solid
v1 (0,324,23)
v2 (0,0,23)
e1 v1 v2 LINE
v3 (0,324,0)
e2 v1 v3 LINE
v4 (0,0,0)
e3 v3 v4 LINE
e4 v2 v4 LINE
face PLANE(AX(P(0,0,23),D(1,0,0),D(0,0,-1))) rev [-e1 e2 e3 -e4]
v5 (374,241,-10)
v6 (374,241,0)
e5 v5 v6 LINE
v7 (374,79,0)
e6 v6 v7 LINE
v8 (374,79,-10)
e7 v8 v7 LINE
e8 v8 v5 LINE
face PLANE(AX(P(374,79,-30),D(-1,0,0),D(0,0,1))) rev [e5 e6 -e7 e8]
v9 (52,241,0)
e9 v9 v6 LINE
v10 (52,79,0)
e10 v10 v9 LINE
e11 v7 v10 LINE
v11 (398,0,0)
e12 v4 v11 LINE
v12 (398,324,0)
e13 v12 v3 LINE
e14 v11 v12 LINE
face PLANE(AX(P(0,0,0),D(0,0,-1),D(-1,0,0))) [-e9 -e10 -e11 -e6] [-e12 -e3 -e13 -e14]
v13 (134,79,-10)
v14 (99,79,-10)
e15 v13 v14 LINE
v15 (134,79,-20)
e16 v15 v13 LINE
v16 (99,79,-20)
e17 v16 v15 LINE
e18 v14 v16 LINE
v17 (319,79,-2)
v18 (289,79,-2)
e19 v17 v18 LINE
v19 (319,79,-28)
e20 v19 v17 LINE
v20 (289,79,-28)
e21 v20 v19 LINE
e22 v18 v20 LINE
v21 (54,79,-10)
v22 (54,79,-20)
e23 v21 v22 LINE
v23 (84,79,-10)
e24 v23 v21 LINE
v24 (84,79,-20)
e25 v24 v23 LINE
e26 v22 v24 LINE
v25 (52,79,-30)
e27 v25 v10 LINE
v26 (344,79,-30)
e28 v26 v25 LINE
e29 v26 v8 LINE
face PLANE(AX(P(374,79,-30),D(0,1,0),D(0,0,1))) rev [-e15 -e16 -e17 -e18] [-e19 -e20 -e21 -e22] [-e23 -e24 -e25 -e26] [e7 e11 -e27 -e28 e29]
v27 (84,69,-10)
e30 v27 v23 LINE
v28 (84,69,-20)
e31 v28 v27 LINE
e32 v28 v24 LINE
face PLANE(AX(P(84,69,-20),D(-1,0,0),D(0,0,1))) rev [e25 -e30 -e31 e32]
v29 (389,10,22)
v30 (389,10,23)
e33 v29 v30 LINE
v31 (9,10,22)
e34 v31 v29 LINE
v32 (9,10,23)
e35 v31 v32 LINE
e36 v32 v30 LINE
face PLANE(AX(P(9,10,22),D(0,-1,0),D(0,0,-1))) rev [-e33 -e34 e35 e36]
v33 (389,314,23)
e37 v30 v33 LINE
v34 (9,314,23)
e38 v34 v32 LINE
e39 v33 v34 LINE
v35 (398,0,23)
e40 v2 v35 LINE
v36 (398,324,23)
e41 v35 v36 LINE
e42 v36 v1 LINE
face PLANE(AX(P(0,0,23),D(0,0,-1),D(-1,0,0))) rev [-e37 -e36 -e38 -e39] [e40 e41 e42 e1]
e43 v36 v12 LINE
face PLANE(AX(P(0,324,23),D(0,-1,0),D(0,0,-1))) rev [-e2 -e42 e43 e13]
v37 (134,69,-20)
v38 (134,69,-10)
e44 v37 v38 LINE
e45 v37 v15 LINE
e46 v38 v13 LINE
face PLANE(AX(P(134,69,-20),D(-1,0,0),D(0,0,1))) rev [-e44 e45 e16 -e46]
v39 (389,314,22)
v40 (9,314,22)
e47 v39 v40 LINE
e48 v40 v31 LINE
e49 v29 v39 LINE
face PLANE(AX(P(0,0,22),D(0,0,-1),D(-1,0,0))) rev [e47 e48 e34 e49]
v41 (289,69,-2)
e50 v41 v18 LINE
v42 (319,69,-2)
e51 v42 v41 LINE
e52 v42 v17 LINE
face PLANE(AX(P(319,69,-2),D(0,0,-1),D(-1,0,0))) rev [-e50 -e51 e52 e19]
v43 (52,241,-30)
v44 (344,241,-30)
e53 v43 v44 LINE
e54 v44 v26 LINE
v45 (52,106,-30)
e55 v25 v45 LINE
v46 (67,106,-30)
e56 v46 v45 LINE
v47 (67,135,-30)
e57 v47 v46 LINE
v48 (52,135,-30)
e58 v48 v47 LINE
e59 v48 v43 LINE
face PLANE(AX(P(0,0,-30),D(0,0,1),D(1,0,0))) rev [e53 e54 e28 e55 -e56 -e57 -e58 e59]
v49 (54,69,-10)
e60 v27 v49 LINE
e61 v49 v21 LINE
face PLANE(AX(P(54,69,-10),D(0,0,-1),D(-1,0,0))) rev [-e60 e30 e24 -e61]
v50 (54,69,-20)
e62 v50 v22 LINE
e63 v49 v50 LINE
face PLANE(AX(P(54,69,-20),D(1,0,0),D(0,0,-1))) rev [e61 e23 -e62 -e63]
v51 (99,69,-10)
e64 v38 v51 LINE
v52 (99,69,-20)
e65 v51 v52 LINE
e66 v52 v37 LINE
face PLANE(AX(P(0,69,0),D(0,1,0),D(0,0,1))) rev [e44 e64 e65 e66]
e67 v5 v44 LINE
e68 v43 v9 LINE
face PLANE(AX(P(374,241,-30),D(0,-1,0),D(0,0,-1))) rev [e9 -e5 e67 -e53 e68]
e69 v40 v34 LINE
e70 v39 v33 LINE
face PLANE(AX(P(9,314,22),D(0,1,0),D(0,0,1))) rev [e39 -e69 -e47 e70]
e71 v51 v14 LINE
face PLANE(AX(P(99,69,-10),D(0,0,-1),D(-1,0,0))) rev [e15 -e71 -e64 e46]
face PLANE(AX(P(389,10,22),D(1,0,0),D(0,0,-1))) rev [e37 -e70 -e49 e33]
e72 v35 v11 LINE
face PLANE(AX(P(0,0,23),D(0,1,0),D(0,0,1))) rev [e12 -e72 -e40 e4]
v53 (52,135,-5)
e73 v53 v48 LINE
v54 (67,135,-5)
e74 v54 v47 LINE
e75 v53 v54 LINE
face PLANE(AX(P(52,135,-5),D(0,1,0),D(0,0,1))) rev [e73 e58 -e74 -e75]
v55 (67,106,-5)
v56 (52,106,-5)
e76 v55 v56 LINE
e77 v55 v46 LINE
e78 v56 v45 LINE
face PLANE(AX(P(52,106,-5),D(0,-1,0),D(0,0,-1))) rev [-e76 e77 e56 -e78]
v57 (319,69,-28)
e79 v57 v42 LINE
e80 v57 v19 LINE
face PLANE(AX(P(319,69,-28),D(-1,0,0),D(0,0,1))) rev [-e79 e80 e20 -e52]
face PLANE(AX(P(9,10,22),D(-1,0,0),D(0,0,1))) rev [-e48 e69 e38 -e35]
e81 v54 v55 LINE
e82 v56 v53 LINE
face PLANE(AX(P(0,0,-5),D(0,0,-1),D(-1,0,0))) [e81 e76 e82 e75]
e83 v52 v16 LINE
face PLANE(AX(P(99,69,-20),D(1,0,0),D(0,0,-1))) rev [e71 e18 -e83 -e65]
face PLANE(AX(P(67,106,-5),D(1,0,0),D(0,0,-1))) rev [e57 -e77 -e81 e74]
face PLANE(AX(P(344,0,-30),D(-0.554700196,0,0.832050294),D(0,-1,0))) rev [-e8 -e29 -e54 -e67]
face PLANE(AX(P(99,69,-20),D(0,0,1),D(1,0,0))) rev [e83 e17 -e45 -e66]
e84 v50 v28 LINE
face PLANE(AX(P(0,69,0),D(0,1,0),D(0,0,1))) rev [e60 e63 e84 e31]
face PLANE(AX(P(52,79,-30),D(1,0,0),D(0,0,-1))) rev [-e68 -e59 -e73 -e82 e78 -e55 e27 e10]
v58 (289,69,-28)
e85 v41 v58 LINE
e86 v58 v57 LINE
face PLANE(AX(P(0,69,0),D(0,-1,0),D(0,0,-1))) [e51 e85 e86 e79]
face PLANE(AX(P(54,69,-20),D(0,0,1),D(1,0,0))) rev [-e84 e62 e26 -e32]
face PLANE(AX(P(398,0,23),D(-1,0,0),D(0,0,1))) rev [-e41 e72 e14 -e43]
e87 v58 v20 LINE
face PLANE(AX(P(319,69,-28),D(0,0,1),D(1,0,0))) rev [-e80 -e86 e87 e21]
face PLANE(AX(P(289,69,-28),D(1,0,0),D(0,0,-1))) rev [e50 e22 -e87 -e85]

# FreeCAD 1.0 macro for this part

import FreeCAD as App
import Part
import Sketcher
from FreeCAD import Vector


def edges_at(feature, points):
    """Names of the edges that pass closest to the given points."""
    edges = feature.Shape.Edges
    near = lambda p: min(range(len(edges)), key=lambda i: edges[i].distToShape(Part.Vertex(*p))[0])
    return sorted({f"Edge{near(p) + 1}" for p in points})

doc = App.newDocument("Part")
body = doc.addObject("PartDesign::Body", "Body")

sketch1 = doc.addObject("Sketcher::SketchObject", "Sketch")
body.addObject(sketch1)
sketch1.AttachmentSupport = (doc.XY_Plane, [""])
sketch1.MapMode = "FlatFace"
sketch1.addGeometry(Part.LineSegment(Vector(0, 324, 0), Vector(0, 0, 0)), False)
sketch1.addGeometry(Part.LineSegment(Vector(0, 0, 0), Vector(398, 0, 0)), False)
sketch1.addGeometry(Part.LineSegment(Vector(398, 0, 0), Vector(398, 324, 0)), False)
sketch1.addGeometry(Part.LineSegment(Vector(398, 324, 0), Vector(0, 324, 0)), False)
sketch1.addConstraint(Sketcher.Constraint("Coincident", 0, 2, 1, 1))
sketch1.addConstraint(Sketcher.Constraint("Coincident", 1, 2, 2, 1))
sketch1.addConstraint(Sketcher.Constraint("Coincident", 2, 2, 3, 1))
sketch1.addConstraint(Sketcher.Constraint("Coincident", 3, 2, 0, 1))
sketch1.addConstraint(Sketcher.Constraint("Vertical", 0))
sketch1.addConstraint(Sketcher.Constraint("Horizontal", 1))
sketch1.addConstraint(Sketcher.Constraint("Vertical", 2))
sketch1.addConstraint(Sketcher.Constraint("Horizontal", 3))
sketch1.addConstraint(Sketcher.Constraint("Coincident", 0, 2, -1, 1))
sketch1.addConstraint(Sketcher.Constraint("DistanceX", 1, 1, 1, 2, 398.0))
sketch1.addConstraint(Sketcher.Constraint("DistanceY", 0, 2, 0, 1, 324.0))
pad1 = doc.addObject("PartDesign::Pad", "Pad")
body.addObject(pad1)
pad1.Profile = sketch1
pad1.Length = 23

sketch2 = doc.addObject("Sketcher::SketchObject", "Sketch001")
body.addObject(sketch2)
sketch2.AttachmentSupport = (doc.XY_Plane, [""])
sketch2.MapMode = "FlatFace"
sketch2.AttachmentOffset = App.Placement(Vector(0, 0, 23), App.Rotation())
sketch2.addGeometry(Part.LineSegment(Vector(9, 314, 0), Vector(9, 10, 0)), False)
sketch2.addGeometry(Part.LineSegment(Vector(9, 10, 0), Vector(389, 10, 0)), False)
sketch2.addGeometry(Part.LineSegment(Vector(389, 10, 0), Vector(389, 314, 0)), False)
sketch2.addGeometry(Part.LineSegment(Vector(389, 314, 0), Vector(9, 314, 0)), False)
sketch2.addConstraint(Sketcher.Constraint("Coincident", 0, 2, 1, 1))
sketch2.addConstraint(Sketcher.Constraint("Coincident", 1, 2, 2, 1))
sketch2.addConstraint(Sketcher.Constraint("Coincident", 2, 2, 3, 1))
sketch2.addConstraint(Sketcher.Constraint("Coincident", 3, 2, 0, 1))
sketch2.addConstraint(Sketcher.Constraint("Vertical", 0))
sketch2.addConstraint(Sketcher.Constraint("Horizontal", 1))
sketch2.addConstraint(Sketcher.Constraint("Vertical", 2))
sketch2.addConstraint(Sketcher.Constraint("Horizontal", 3))
sketch2.addConstraint(Sketcher.Constraint("DistanceX", 1, 1, 1, 2, 380.0))
sketch2.addConstraint(Sketcher.Constraint("DistanceY", 0, 2, 0, 1, 304.0))
sketch2.addConstraint(Sketcher.Constraint("DistanceX", -1, 1, 0, 2, 9.0))
sketch2.addConstraint(Sketcher.Constraint("DistanceY", -1, 1, 0, 2, 10.0))
pocket1 = doc.addObject("PartDesign::Pocket", "Pocket")
body.addObject(pocket1)
pocket1.Profile = sketch2
pocket1.Length = 1

sketch3 = doc.addObject("Sketcher::SketchObject", "Sketch002")
body.addObject(sketch3)
sketch3.AttachmentSupport = (doc.XY_Plane, [""])
sketch3.MapMode = "FlatFace"
sketch3.addGeometry(Part.LineSegment(Vector(374, 241, 0), Vector(374, 79, 0)), False)
sketch3.addGeometry(Part.LineSegment(Vector(374, 79, 0), Vector(52, 79, 0)), False)
sketch3.addGeometry(Part.LineSegment(Vector(52, 79, 0), Vector(52, 241, 0)), False)
sketch3.addGeometry(Part.LineSegment(Vector(52, 241, 0), Vector(374, 241, 0)), False)
sketch3.addConstraint(Sketcher.Constraint("Coincident", 0, 2, 1, 1))
sketch3.addConstraint(Sketcher.Constraint("Coincident", 1, 2, 2, 1))
sketch3.addConstraint(Sketcher.Constraint("Coincident", 2, 2, 3, 1))
sketch3.addConstraint(Sketcher.Constraint("Coincident", 3, 2, 0, 1))
sketch3.addConstraint(Sketcher.Constraint("Vertical", 0))
sketch3.addConstraint(Sketcher.Constraint("Horizontal", 1))
sketch3.addConstraint(Sketcher.Constraint("Vertical", 2))
sketch3.addConstraint(Sketcher.Constraint("Horizontal", 3))
sketch3.addConstraint(Sketcher.Constraint("DistanceX", 1, 2, 1, 1, 322.0))
sketch3.addConstraint(Sketcher.Constraint("DistanceY", 0, 2, 0, 1, 162.0))
sketch3.addConstraint(Sketcher.Constraint("DistanceX", -1, 1, 0, 2, 374.0))
sketch3.addConstraint(Sketcher.Constraint("DistanceY", -1, 1, 0, 2, 79.0))
pad2 = doc.addObject("PartDesign::Pad", "Pad001")
body.addObject(pad2)
pad2.Profile = sketch3
pad2.Length = 30
pad2.Reversed = True
doc.recompute()

chamfer = doc.addObject("PartDesign::Chamfer", "Chamfer")
body.addObject(chamfer)
chamfer.Base = (pad2, edges_at(pad2, [(374, 160, -30)]))
chamfer.ChamferType = "Two distances"
chamfer.Size = 20
chamfer.Size2 = 30

sketch4 = doc.addObject("Sketcher::SketchObject", "Sketch003")
body.addObject(sketch4)
sketch4.AttachmentSupport = (doc.XZ_Plane, [""])
sketch4.MapMode = "FlatFace"
sketch4.AttachmentOffset = App.Placement(Vector(0, 0, -79), App.Rotation())
sketch4.addGeometry(Part.LineSegment(Vector(54, -10, 0), Vector(54, -20, 0)), False)
sketch4.addGeometry(Part.LineSegment(Vector(54, -20, 0), Vector(84, -20, 0)), False)
sketch4.addGeometry(Part.LineSegment(Vector(84, -20, 0), Vector(84, -10, 0)), False)
sketch4.addGeometry(Part.LineSegment(Vector(84, -10, 0), Vector(54, -10, 0)), False)
sketch4.addGeometry(Part.LineSegment(Vector(99, -10, 0), Vector(99, -20, 0)), False)
sketch4.addGeometry(Part.LineSegment(Vector(99, -20, 0), Vector(134, -20, 0)), False)
sketch4.addGeometry(Part.LineSegment(Vector(134, -20, 0), Vector(134, -10, 0)), False)
sketch4.addGeometry(Part.LineSegment(Vector(134, -10, 0), Vector(99, -10, 0)), False)
sketch4.addGeometry(Part.LineSegment(Vector(289, -2, 0), Vector(289, -28, 0)), False)
sketch4.addGeometry(Part.LineSegment(Vector(289, -28, 0), Vector(319, -28, 0)), False)
sketch4.addGeometry(Part.LineSegment(Vector(319, -28, 0), Vector(319, -2, 0)), False)
sketch4.addGeometry(Part.LineSegment(Vector(319, -2, 0), Vector(289, -2, 0)), False)
sketch4.addConstraint(Sketcher.Constraint("Coincident", 0, 2, 1, 1))
sketch4.addConstraint(Sketcher.Constraint("Coincident", 1, 2, 2, 1))
sketch4.addConstraint(Sketcher.Constraint("Coincident", 2, 2, 3, 1))
sketch4.addConstraint(Sketcher.Constraint("Coincident", 3, 2, 0, 1))
sketch4.addConstraint(Sketcher.Constraint("Coincident", 4, 2, 5, 1))
sketch4.addConstraint(Sketcher.Constraint("Coincident", 5, 2, 6, 1))
sketch4.addConstraint(Sketcher.Constraint("Coincident", 6, 2, 7, 1))
sketch4.addConstraint(Sketcher.Constraint("Coincident", 7, 2, 4, 1))
sketch4.addConstraint(Sketcher.Constraint("Coincident", 8, 2, 9, 1))
sketch4.addConstraint(Sketcher.Constraint("Coincident", 9, 2, 10, 1))
sketch4.addConstraint(Sketcher.Constraint("Coincident", 10, 2, 11, 1))
sketch4.addConstraint(Sketcher.Constraint("Coincident", 11, 2, 8, 1))
sketch4.addConstraint(Sketcher.Constraint("Vertical", 0))
sketch4.addConstraint(Sketcher.Constraint("Horizontal", 1))
sketch4.addConstraint(Sketcher.Constraint("Vertical", 2))
sketch4.addConstraint(Sketcher.Constraint("Horizontal", 3))
sketch4.addConstraint(Sketcher.Constraint("Vertical", 4))
sketch4.addConstraint(Sketcher.Constraint("Horizontal", 5))
sketch4.addConstraint(Sketcher.Constraint("Vertical", 6))
sketch4.addConstraint(Sketcher.Constraint("Horizontal", 7))
sketch4.addConstraint(Sketcher.Constraint("Vertical", 8))
sketch4.addConstraint(Sketcher.Constraint("Horizontal", 9))
sketch4.addConstraint(Sketcher.Constraint("Vertical", 10))
sketch4.addConstraint(Sketcher.Constraint("Horizontal", 11))
sketch4.addConstraint(Sketcher.Constraint("Horizontal", 1, 2, 4, 2))
sketch4.addConstraint(Sketcher.Constraint("Horizontal", 3, 2, 6, 2))
sketch4.addConstraint(Sketcher.Constraint("Equal", 3, 9))
sketch4.addConstraint(Sketcher.Constraint("DistanceX", 1, 1, 1, 2, 30.0))
sketch4.addConstraint(Sketcher.Constraint("DistanceX", 5, 1, 5, 2, 35.0))
sketch4.addConstraint(Sketcher.Constraint("DistanceY", 0, 2, 0, 1, 10.0))
sketch4.addConstraint(Sketcher.Constraint("DistanceY", 8, 2, 8, 1, 26.0))
sketch4.addConstraint(Sketcher.Constraint("DistanceX", -1, 1, 0, 2, 54.0))
sketch4.addConstraint(Sketcher.Constraint("DistanceY", 0, 2, -1, 1, 20.0))
sketch4.addConstraint(Sketcher.Constraint("DistanceX", -1, 1, 4, 2, 99.0))
sketch4.addConstraint(Sketcher.Constraint("DistanceX", -1, 1, 8, 2, 289.0))
sketch4.addConstraint(Sketcher.Constraint("DistanceY", 8, 2, -1, 1, 28.0))
pad3 = doc.addObject("PartDesign::Pad", "Pad002")
body.addObject(pad3)
pad3.Profile = sketch4
pad3.Length = 10

sketch5 = doc.addObject("Sketcher::SketchObject", "Sketch004")
body.addObject(sketch5)
sketch5.AttachmentSupport = (doc.XY_Plane, [""])
sketch5.MapMode = "FlatFace"
sketch5.AttachmentOffset = App.Placement(Vector(0, 0, -30), App.Rotation())
sketch5.addGeometry(Part.LineSegment(Vector(67, 135, 0), Vector(67, 106, 0)), False)
sketch5.addGeometry(Part.LineSegment(Vector(67, 106, 0), Vector(52, 106, 0)), False)
sketch5.addGeometry(Part.LineSegment(Vector(52, 106, 0), Vector(52, 135, 0)), False)
sketch5.addGeometry(Part.LineSegment(Vector(52, 135, 0), Vector(67, 135, 0)), False)
sketch5.addConstraint(Sketcher.Constraint("Coincident", 0, 2, 1, 1))
sketch5.addConstraint(Sketcher.Constraint("Coincident", 1, 2, 2, 1))
sketch5.addConstraint(Sketcher.Constraint("Coincident", 2, 2, 3, 1))
sketch5.addConstraint(Sketcher.Constraint("Coincident", 3, 2, 0, 1))
sketch5.addConstraint(Sketcher.Constraint("Vertical", 0))
sketch5.addConstraint(Sketcher.Constraint("Horizontal", 1))
sketch5.addConstraint(Sketcher.Constraint("Vertical", 2))
sketch5.addConstraint(Sketcher.Constraint("Horizontal", 3))
sketch5.addConstraint(Sketcher.Constraint("DistanceX", 1, 2, 1, 1, 15.0))
sketch5.addConstraint(Sketcher.Constraint("DistanceY", 0, 2, 0, 1, 29.0))
sketch5.addConstraint(Sketcher.Constraint("DistanceX", -1, 1, 0, 2, 67.0))
sketch5.addConstraint(Sketcher.Constraint("DistanceY", -1, 1, 0, 2, 106.0))
pocket2 = doc.addObject("PartDesign::Pocket", "Pocket001")
body.addObject(pocket2)
pocket2.Profile = sketch5
pocket2.Length = 25
pocket2.Reversed = True

doc.recompute()
